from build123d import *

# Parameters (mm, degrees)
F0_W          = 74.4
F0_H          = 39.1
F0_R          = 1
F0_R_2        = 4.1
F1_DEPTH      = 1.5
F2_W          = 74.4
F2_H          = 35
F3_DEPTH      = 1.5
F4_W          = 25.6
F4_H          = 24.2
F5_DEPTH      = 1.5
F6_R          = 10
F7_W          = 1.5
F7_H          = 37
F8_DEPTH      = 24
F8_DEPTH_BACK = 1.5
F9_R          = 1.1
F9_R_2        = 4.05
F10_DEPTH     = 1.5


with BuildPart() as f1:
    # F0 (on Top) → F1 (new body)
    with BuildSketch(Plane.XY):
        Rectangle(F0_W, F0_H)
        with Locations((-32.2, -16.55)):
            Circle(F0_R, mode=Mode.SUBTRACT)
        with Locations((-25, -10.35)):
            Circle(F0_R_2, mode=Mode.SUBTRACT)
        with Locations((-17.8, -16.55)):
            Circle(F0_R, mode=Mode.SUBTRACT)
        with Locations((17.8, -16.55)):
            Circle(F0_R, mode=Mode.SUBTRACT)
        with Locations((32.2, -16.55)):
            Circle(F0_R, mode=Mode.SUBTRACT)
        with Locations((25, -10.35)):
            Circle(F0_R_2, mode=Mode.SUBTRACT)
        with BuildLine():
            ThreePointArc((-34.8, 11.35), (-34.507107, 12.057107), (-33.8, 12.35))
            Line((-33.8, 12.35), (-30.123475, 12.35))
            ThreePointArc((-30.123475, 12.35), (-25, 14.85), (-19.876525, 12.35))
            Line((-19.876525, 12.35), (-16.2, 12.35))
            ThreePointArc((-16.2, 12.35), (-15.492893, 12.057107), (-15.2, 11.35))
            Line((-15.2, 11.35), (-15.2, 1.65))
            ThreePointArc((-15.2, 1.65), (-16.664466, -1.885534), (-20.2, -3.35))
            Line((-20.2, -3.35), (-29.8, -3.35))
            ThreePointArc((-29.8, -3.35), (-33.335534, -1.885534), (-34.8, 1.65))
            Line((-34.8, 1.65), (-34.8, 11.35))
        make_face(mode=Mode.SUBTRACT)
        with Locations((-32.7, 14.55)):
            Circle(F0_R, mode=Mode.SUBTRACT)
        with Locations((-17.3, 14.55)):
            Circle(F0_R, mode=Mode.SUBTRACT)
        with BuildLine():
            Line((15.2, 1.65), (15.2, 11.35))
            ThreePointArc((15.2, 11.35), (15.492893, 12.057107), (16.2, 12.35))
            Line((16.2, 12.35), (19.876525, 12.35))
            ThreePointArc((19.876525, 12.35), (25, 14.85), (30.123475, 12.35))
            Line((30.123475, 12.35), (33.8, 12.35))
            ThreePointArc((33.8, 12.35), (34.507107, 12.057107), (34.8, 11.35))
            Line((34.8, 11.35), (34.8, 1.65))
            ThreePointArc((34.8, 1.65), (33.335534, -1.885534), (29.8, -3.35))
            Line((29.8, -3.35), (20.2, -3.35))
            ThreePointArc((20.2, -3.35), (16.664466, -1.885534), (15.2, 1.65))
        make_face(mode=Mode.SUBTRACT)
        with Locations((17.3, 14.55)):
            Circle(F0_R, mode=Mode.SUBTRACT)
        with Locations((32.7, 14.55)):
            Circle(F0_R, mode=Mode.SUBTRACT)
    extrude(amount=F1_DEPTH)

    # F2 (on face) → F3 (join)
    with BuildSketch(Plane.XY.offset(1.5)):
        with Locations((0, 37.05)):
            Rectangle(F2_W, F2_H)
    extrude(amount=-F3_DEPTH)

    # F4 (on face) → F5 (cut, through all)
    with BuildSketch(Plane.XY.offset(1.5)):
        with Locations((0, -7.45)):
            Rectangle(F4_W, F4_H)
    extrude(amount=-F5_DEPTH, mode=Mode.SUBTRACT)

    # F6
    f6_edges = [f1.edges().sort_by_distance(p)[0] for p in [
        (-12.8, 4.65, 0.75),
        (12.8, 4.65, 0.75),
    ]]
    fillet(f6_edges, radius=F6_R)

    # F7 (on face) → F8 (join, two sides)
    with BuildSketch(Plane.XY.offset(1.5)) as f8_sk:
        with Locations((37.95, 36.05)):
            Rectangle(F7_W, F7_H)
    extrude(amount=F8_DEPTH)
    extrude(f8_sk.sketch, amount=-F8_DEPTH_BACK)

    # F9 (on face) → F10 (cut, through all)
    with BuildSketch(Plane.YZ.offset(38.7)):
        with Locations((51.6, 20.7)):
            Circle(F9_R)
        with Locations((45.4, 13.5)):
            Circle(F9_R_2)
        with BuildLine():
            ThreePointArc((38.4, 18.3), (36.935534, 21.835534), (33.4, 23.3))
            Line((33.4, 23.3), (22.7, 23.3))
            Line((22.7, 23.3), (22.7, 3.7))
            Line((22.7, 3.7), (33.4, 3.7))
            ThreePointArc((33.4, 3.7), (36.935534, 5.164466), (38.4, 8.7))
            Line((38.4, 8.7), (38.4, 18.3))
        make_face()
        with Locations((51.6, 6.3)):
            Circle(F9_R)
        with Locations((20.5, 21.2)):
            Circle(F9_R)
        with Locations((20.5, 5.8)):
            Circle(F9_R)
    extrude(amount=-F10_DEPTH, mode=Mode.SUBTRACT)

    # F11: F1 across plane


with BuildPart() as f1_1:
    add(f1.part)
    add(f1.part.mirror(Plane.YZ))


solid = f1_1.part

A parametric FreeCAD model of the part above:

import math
import FreeCAD as App
import Part
import Sketcher

V = App.Vector


def edges_at(feature, points):
    """Names of the edges that pass closest to the given points."""
    edges = feature.Shape.Edges
    near = lambda p: min(range(len(edges)), key=lambda i: edges[i].distToShape(Part.Vertex(*p))[0])
    return sorted({f"Edge{near(p) + 1}" for p in points})

doc = App.newDocument("Part")
params = doc.addObject("Spreadsheet::Sheet", "Params")
for row, (alias, value) in enumerate([
    ("sketch1_diameter", "2 mm"),
    ("sketch1_radius", "5 mm"),
    ("sketch1_diameter2", "8.2 mm"),
    ("sketch1_radius2", "6.499999 mm"),
    ("sketch1_width", "74.4 mm"),
    ("pad1_length", "1.5 mm"),
    ("sketch2_height", "35 mm"),
    ("sketch2_width", "74.4 mm"),
    ("pad2_length", "1.5 mm"),
    ("sketch3_width", "25.6 mm"),
    ("sketch3_height", "24.2 mm"),
    ("fillet_radius", "10 mm"),
    ("sketch4_height", "37 mm"),
    ("sketch4_width", "1.5 mm"),
    ("pad3_length", "24 mm"),
    ("pad3_length2", "1.5 mm"),
    ("sketch5_radius", "5 mm"),
    ("sketch5_diameter", "2.2 mm"),
    ("sketch5_diameter2", "8.1 mm"),
    ("sketch5_width", "10.7 mm"),
    ("sketch5_height", "19.6 mm"),
], start=1):
    params.set(f"A{row}", alias)
    params.set(f"B{row}", "=" + value)
    params.setAlias(f"B{row}", alias)

body = doc.addObject("PartDesign::Body", "Body")

# Sketch on XY plane
sketch1 = doc.addObject("Sketcher::SketchObject", "Sketch")
body.addObject(sketch1)
sketch1.AttachmentSupport = (doc.XY_Plane, [""])
sketch1.MapMode = "FlatFace"
sketch1.addGeometry([
    Part.LineSegment(V(-37.2, 19.55, 0), V(-37.2, -19.55, 0)),  # 0
    Part.LineSegment(V(-37.2, -19.55, 0), V(37.2, -19.55, 0)),  # 1
    Part.LineSegment(V(37.2, -19.55, 0), V(37.2, 19.55, 0)),  # 2
    Part.LineSegment(V(37.2, 19.55, 0), V(-37.2, 19.55, 0)),  # 3
    Part.Circle(V(-32.2, -16.55, 0), V(0, 0, 1), 1),  # 4
    Part.Circle(V(-17.8, -16.55, 0), V(0, 0, 1), 1),  # 5
    Part.Circle(V(-25, -10.35, 0), V(0, 0, 1), 4.1),  # 6
    Part.Circle(V(17.8, -16.55, 0), V(0, 0, 1), 1),  # 7
    Part.Circle(V(32.2, -16.55, 0), V(0, 0, 1), 1),  # 8
    Part.Circle(V(25, -10.35, 0), V(0, 0, 1), 4.1),  # 9
    Part.LineSegment(V(-34.8, 1.65, 0), V(-34.8, 11.35, 0)),  # 10
    Part.ArcOfCircle(Part.Circle(V(-33.800001, 11.350001, 0), V(0, 0, 1), 0.999999), math.radians(89.999957), math.radians(180.000043)),  # 11
    Part.LineSegment(V(-33.8, 12.35, 0), V(-30.123475, 12.35, 0)),  # 12
    Part.ArcOfCircle(Part.Circle(V(-25, 8.350001, 0), V(0, 0, 1), 6.499999), math.radians(37.979869), math.radians(142.020131)),  # 13
    Part.LineSegment(V(-19.876525, 12.35, 0), V(-16.2, 12.35, 0)),  # 14
    Part.ArcOfCircle(Part.Circle(V(-16.199999, 11.350001, 0), V(0, 0, 1), 0.999999), math.radians(-0.000043), math.radians(90.000043)),  # 15
    Part.LineSegment(V(-15.2, 11.35, 0), V(-15.2, 1.65, 0)),  # 16
    Part.ArcOfCircle(Part.Circle(V(-20.2, 1.65, 0), V(0, 0, 1), 5), math.radians(-90.000004), math.radians(0.000004)),  # 17
    Part.LineSegment(V(-20.2, -3.35, 0), V(-29.8, -3.35, 0)),  # 18
    Part.ArcOfCircle(Part.Circle(V(-29.8, 1.65, 0), V(0, 0, 1), 5), math.radians(179.999996), math.radians(270.000004)),  # 19
    Part.Circle(V(-32.7, 14.55, 0), V(0, 0, 1), 1),  # 20
    Part.Circle(V(-17.3, 14.55, 0), V(0, 0, 1), 1),  # 21
    Part.ArcOfCircle(Part.Circle(V(20.2, 1.65, 0), V(0, 0, 1), 5), math.radians(179.999996), math.radians(270.000004)),  # 22
    Part.LineSegment(V(15.2, 1.65, 0), V(15.2, 11.35, 0)),  # 23
    Part.ArcOfCircle(Part.Circle(V(16.199999, 11.350001, 0), V(0, 0, 1), 0.999999), math.radians(89.999957), math.radians(180.000043)),  # 24
    Part.LineSegment(V(16.2, 12.35, 0), V(19.876525, 12.35, 0)),  # 25
    Part.ArcOfCircle(Part.Circle(V(25, 8.350001, 0), V(0, 0, 1), 6.499999), math.radians(37.979869), math.radians(142.020131)),  # 26
    Part.LineSegment(V(30.123475, 12.35, 0), V(33.8, 12.35, 0)),  # 27
    Part.ArcOfCircle(Part.Circle(V(33.800001, 11.350001, 0), V(0, 0, 1), 0.999999), math.radians(-0.000043), math.radians(90.000043)),  # 28
    Part.LineSegment(V(34.8, 11.35, 0), V(34.8, 1.65, 0)),  # 29
    Part.ArcOfCircle(Part.Circle(V(29.8, 1.65, 0), V(0, 0, 1), 5), math.radians(-90.000004), math.radians(0.000004)),  # 30
    Part.LineSegment(V(29.8, -3.35, 0), V(20.2, -3.35, 0)),  # 31
    Part.Circle(V(17.3, 14.55, 0), V(0, 0, 1), 1),  # 32
    Part.Circle(V(32.7, 14.55, 0), V(0, 0, 1), 1),  # 33
], False)
sketch1.addConstraint([
    Sketcher.Constraint("Coincident", 0, 2, 1, 1),
    Sketcher.Constraint("Coincident", 1, 2, 2, 1),
    Sketcher.Constraint("Coincident", 2, 2, 3, 1),
    Sketcher.Constraint("Coincident", 3, 2, 0, 1),
    Sketcher.Constraint("Tangent", 10, 2, 11, 2),
    Sketcher.Constraint("Tangent", 11, 1, 12, 1),
    Sketcher.Constraint("Coincident", 12, 2, 13, 2),
    Sketcher.Constraint("Coincident", 13, 1, 14, 1),
    Sketcher.Constraint("Tangent", 14, 2, 15, 2),
    Sketcher.Constraint("Tangent", 15, 1, 16, 1),
    Sketcher.Constraint("Tangent", 16, 2, 17, 2),
    Sketcher.Constraint("Tangent", 17, 1, 18, 1),
    Sketcher.Constraint("Tangent", 18, 2, 19, 2),
    Sketcher.Constraint("Tangent", 19, 1, 10, 1),
    Sketcher.Constraint("Tangent", 22, 1, 23, 1),
    Sketcher.Constraint("Tangent", 23, 2, 24, 2),
    Sketcher.Constraint("Tangent", 24, 1, 25, 1),
    Sketcher.Constraint("Coincident", 25, 2, 26, 2),
    Sketcher.Constraint("Coincident", 26, 1, 27, 1),
    Sketcher.Constraint("Tangent", 27, 2, 28, 2),
    Sketcher.Constraint("Tangent", 28, 1, 29, 1),
    Sketcher.Constraint("Tangent", 29, 2, 30, 2),
    Sketcher.Constraint("Tangent", 30, 1, 31, 1),
    Sketcher.Constraint("Tangent", 31, 2, 22, 2),
    Sketcher.Constraint("Vertical", 0),
    Sketcher.Constraint("Horizontal", 1),
    Sketcher.Constraint("Vertical", 2),
    Sketcher.Constraint("Horizontal", 3),
    Sketcher.Constraint("Vertical", 10),
    Sketcher.Constraint("Horizontal", 12),
    Sketcher.Constraint("Horizontal", 14),
    Sketcher.Constraint("Vertical", 16),
    Sketcher.Constraint("Horizontal", 18),
    Sketcher.Constraint("Vertical", 23),
    Sketcher.Constraint("Horizontal", 25),
    Sketcher.Constraint("Horizontal", 27),
    Sketcher.Constraint("Vertical", 29),
    Sketcher.Constraint("Horizontal", 31),
    Sketcher.Constraint("Equal", 4, 5),
    Sketcher.Constraint("Equal", 5, 7),
    Sketcher.Constraint("Equal", 7, 8),
    Sketcher.Constraint("Equal", 6, 9),
    Sketcher.Constraint("Equal", 8, 11),
    Sketcher.Constraint("Equal", 11, 15),
    Sketcher.Constraint("Equal", 17, 19),
    Sketcher.Constraint("Equal", 15, 20),
    Sketcher.Constraint("Equal", 20, 21),
    Sketcher.Constraint("Equal", 19, 22),
    Sketcher.Constraint("Equal", 21, 24),
    Sketcher.Constraint("Equal", 13, 26),
    Sketcher.Constraint("Equal", 24, 28),
    Sketcher.Constraint("Equal", 22, 30),
    Sketcher.Constraint("Equal", 28, 32),
    Sketcher.Constraint("Equal", 32, 33),
    Sketcher.Constraint("Symmetric", 0, 2, 2, 2, -1, 1),
    Sketcher.Constraint("Symmetric", 5, 3, 7, 3, -2),
    Sketcher.Constraint("Symmetric", 4, 3, 8, 3, -2),
    Sketcher.Constraint("Symmetric", 6, 3, 9, 3, -2),
    Sketcher.Constraint("Symmetric", 17, 3, 22, 3, -2),
    Sketcher.Constraint("Symmetric", 13, 3, 26, 3, -2),
    Sketcher.Constraint("Symmetric", 11, 3, 28, 3, -2),
    Sketcher.Constraint("Symmetric", 21, 3, 32, 3, -2),
    Sketcher.Constraint("Symmetric", 20, 3, 33, 3, -2),
    Sketcher.Constraint("Horizontal", 4, 3, 5, 3),
    Sketcher.Constraint("Horizontal", 11, 3, 15, 3),
    Sketcher.Constraint("Horizontal", 20, 3, 21, 3),
    Sketcher.Constraint("Horizontal", 15, 3, 24, 3),
    Sketcher.Constraint("Vertical", 6, 3, 13, 3),
    Sketcher.Constraint("Equal", 12, 14),
    Sketcher.Constraint("Diameter", 4, 2.0),
    Sketcher.Constraint("Radius", 17, 5.0),
    Sketcher.Constraint("Diameter", 6, 8.2),
    Sketcher.Constraint("Radius", 13, 6.499999),
    Sketcher.Constraint("DistanceX", 1, 1, 1, 2, 74.4),
    Sketcher.Constraint("DistanceX", 18, 2, 18, 1, 9.6),
    Sketcher.Constraint("DistanceY", 0, 2, 0, 1, 39.1),
    Sketcher.Constraint("DistanceY", 10, 1, 10, 2, 9.7),
    Sketcher.Constraint("DistanceX", 6, 3, -1, 1, 25.0),
    Sketcher.Constraint("DistanceX", 4, 3, 7, 3, 50.0),
    Sketcher.Constraint("DistanceX", 11, 3, 5, 3, 16.000001),
    Sketcher.Constraint("DistanceY", 13, 3, 11, 3, 3.0),
    Sketcher.Constraint("DistanceY", 6, 3, 17, 3, 12.0),
    Sketcher.Constraint("DistanceY", 0, 2, 4, 3, 3.0),
    Sketcher.Constraint("DistanceY", 33, 3, 2, 2, 5.0),
    Sketcher.Constraint("DistanceX", 20, 3, -1, 1, 32.7),
    Sketcher.Constraint("DistanceX", 21, 3, -1, 1, 17.3),
    Sketcher.Constraint("DistanceY", 5, 3, 6, 3, 6.2),
])
sketch1.setExpression("Constraints[69]", "Params.sketch1_diameter")
sketch1.setExpression("Constraints[70]", "Params.sketch1_radius")
sketch1.setExpression("Constraints[71]", "Params.sketch1_diameter2")
sketch1.setExpression("Constraints[72]", "Params.sketch1_radius2")
sketch1.setExpression("Constraints[73]", "Params.sketch1_width")
pad1 = doc.addObject("PartDesign::Pad", "Pad")
body.addObject(pad1)
pad1.Profile = sketch1
pad1.setExpression("Length", "Params.pad1_length")

# Sketch on XY plane
sketch2 = doc.addObject("Sketcher::SketchObject", "Sketch001")
body.addObject(sketch2)
sketch2.AttachmentSupport = (doc.XY_Plane, [""])
sketch2.MapMode = "FlatFace"
sketch2.AttachmentOffset = App.Placement(V(0, 0, 1.5), App.Rotation())
sketch2.addGeometry([
    Part.LineSegment(V(-37.2, 54.55, 0), V(-37.2, 19.55, 0)),
    Part.LineSegment(V(-37.2, 19.55, 0), V(37.2, 19.55, 0)),
    Part.LineSegment(V(37.2, 19.55, 0), V(37.2, 54.55, 0)),
    Part.LineSegment(V(37.2, 54.55, 0), V(-37.2, 54.55, 0)),
], False)
sketch2.addConstraint([
    Sketcher.Constraint("Coincident", 0, 2, 1, 1),
    Sketcher.Constraint("Coincident", 1, 2, 2, 1),
    Sketcher.Constraint("Coincident", 2, 2, 3, 1),
    Sketcher.Constraint("Coincident", 3, 2, 0, 1),
    Sketcher.Constraint("Vertical", 0),
    Sketcher.Constraint("Horizontal", 1),
    Sketcher.Constraint("Vertical", 2),
    Sketcher.Constraint("Horizontal", 3),
    Sketcher.Constraint("DistanceY", 0, 2, 0, 1, 35.0),
    Sketcher.Constraint("DistanceX", 1, 1, 1, 2, 74.4),
    Sketcher.Constraint("DistanceX", 0, 2, -1, 1, 37.2),
    Sketcher.Constraint("DistanceY", -1, 1, 0, 2, 19.55),
])
sketch2.setExpression("Constraints[8]", "Params.sketch2_height")
sketch2.setExpression("Constraints[9]", "Params.sketch2_width")
pad2 = doc.addObject("PartDesign::Pad", "Pad001")
body.addObject(pad2)
pad2.Profile = sketch2
pad2.setExpression("Length", "Params.pad2_length")
pad2.Reversed = True

# Sketch on XY plane
sketch3 = doc.addObject("Sketcher::SketchObject", "Sketch002")
body.addObject(sketch3)
sketch3.AttachmentSupport = (doc.XY_Plane, [""])
sketch3.MapMode = "FlatFace"
sketch3.AttachmentOffset = App.Placement(V(0, 0, 1.5), App.Rotation())
sketch3.addGeometry([
    Part.LineSegment(V(-12.8, 4.65, 0), V(-12.8, -19.55, 0)),
    Part.LineSegment(V(-12.8, -19.55, 0), V(12.8, -19.55, 0)),
    Part.LineSegment(V(12.8, -19.55, 0), V(12.8, 4.65, 0)),
    Part.LineSegment(V(12.8, 4.65, 0), V(-12.8, 4.65, 0)),
], False)
sketch3.addConstraint([
    Sketcher.Constraint("Coincident", 0, 2, 1, 1),
    Sketcher.Constraint("Coincident", 1, 2, 2, 1),
    Sketcher.Constraint("Coincident", 2, 2, 3, 1),
    Sketcher.Constraint("Coincident", 3, 2, 0, 1),
    Sketcher.Constraint("Vertical", 0),
    Sketcher.Constraint("Horizontal", 1),
    Sketcher.Constraint("Vertical", 2),
    Sketcher.Constraint("Horizontal", 3),
    Sketcher.Constraint("DistanceX", 1, 1, 1, 2, 25.6),
    Sketcher.Constraint("DistanceY", 0, 2, 0, 1, 24.2),
    Sketcher.Constraint("DistanceX", 0, 2, -1, 1, 12.8),
    Sketcher.Constraint("DistanceY", 0, 2, -1, 1, 19.55),
])
sketch3.setExpression("Constraints[8]", "Params.sketch3_width")
sketch3.setExpression("Constraints[9]", "Params.sketch3_height")
pocket1 = doc.addObject("PartDesign::Pocket", "Pocket")
body.addObject(pocket1)
pocket1.Profile = sketch3
pocket1.Type = "ThroughAll"
doc.recompute()

fillet = doc.addObject("PartDesign::Fillet", "Fillet")
body.addObject(fillet)
fillet.Base = (pocket1, edges_at(pocket1, [(-12.8, 4.65, 0.75), (12.8, 4.65, 0.75)]))
fillet.setExpression("Radius", "Params.fillet_radius")

# Sketch on XY plane
sketch4 = doc.addObject("Sketcher::SketchObject", "Sketch003")
body.addObject(sketch4)
sketch4.AttachmentSupport = (doc.XY_Plane, [""])
sketch4.MapMode = "FlatFace"
sketch4.AttachmentOffset = App.Placement(V(0, 0, 1.5), App.Rotation())
sketch4.addGeometry([
    Part.LineSegment(V(37.2, 54.55, 0), V(37.2, 17.55, 0)),
    Part.LineSegment(V(37.2, 17.55, 0), V(38.7, 17.55, 0)),
    Part.LineSegment(V(38.7, 17.55, 0), V(38.7, 54.55, 0)),
    Part.LineSegment(V(38.7, 54.55, 0), V(37.2, 54.55, 0)),
], False)
sketch4.addConstraint([
    Sketcher.Constraint("Coincident", 0, 2, 1, 1),
    Sketcher.Constraint("Coincident", 1, 2, 2, 1),
    Sketcher.Constraint("Coincident", 2, 2, 3, 1),
    Sketcher.Constraint("Coincident", 3, 2, 0, 1),
    Sketcher.Constraint("Vertical", 0),
    Sketcher.Constraint("Horizontal", 1),
    Sketcher.Constraint("Vertical", 2),
    Sketcher.Constraint("Horizontal", 3),
    Sketcher.Constraint("DistanceY", 0, 2, 0, 1, 37.0),
    Sketcher.Constraint("DistanceX", 1, 1, 1, 2, 1.5),
    Sketcher.Constraint("DistanceX", -1, 1, 0, 2, 37.2),
    Sketcher.Constraint("DistanceY", -1, 1, 0, 2, 17.55),
])
sketch4.setExpression("Constraints[8]", "Params.sketch4_height")
sketch4.setExpression("Constraints[9]", "Params.sketch4_width")
pad3 = doc.addObject("PartDesign::Pad", "Pad002")
body.addObject(pad3)
pad3.Profile = sketch4
pad3.Type = "TwoLengths"
pad3.setExpression("Length", "Params.pad3_length")
pad3.setExpression("Length2", "Params.pad3_length2")

# Sketch on YZ plane
sketch5 = doc.addObject("Sketcher::SketchObject", "Sketch004")
body.addObject(sketch5)
sketch5.AttachmentSupport = (doc.YZ_Plane, [""])
sketch5.MapMode = "FlatFace"
sketch5.AttachmentOffset = App.Placement(V(0, 0, 38.7), App.Rotation())
sketch5.addGeometry([
    Part.Circle(V(51.6, 20.7, 0), V(0, 0, 1), 1.1),  # 0
    Part.Circle(V(45.4, 13.5, 0), V(0, 0, 1), 4.05),  # 1
    Part.ArcOfCircle(Part.Circle(V(33.4, 18.3, 0), V(0, 0, 1), 5), math.radians(-0.000004), math.radians(90.000004)),  # 2
    Part.LineSegment(V(33.4, 23.3, 0), V(22.7, 23.3, 0)),  # 3
    Part.LineSegment(V(22.7, 23.3, 0), V(22.7, 3.7, 0)),  # 4
    Part.LineSegment(V(22.7, 3.7, 0), V(33.4, 3.7, 0)),  # 5
    Part.ArcOfCircle(Part.Circle(V(33.4, 8.7, 0), V(0, 0, 1), 5), math.radians(-90.000004), math.radians(0.000004)),  # 6
    Part.LineSegment(V(38.4, 8.7, 0), V(38.4, 18.3, 0)),  # 7
    Part.Circle(V(51.6, 6.3, 0), V(0, 0, 1), 1.1),  # 8
    Part.Circle(V(20.5, 21.2, 0), V(0, 0, 1), 1.1),  # 9
    Part.Circle(V(20.5, 5.8, 0), V(0, 0, 1), 1.1),  # 10
], False)
sketch5.addConstraint([
    Sketcher.Constraint("Tangent", 2, 2, 3, 1),
    Sketcher.Constraint("Coincident", 3, 2, 4, 1),
    Sketcher.Constraint("Coincident", 4, 2, 5, 1),
    Sketcher.Constraint("Tangent", 5, 2, 6, 1),
    Sketcher.Constraint("Tangent", 6, 2, 7, 1),
    Sketcher.Constraint("Tangent", 7, 2, 2, 1),
    Sketcher.Constraint("Horizontal", 3),
    Sketcher.Constraint("Vertical", 4),
    Sketcher.Constraint("Horizontal", 5),
    Sketcher.Constraint("Vertical", 7),
    Sketcher.Constraint("Equal", 2, 6),
    Sketcher.Constraint("Equal", 0, 8),
    Sketcher.Constraint("Equal", 8, 9),
    Sketcher.Constraint("Equal", 9, 10),
    Sketcher.Constraint("Vertical", 0, 3, 8, 3),
    Sketcher.Constraint("Vertical", 9, 3, 10, 3),
    Sketcher.Constraint("Radius", 2, 5.0),
    Sketcher.Constraint("Diameter", 0, 2.2),
    Sketcher.Constraint("Diameter", 1, 8.1),
    Sketcher.Constraint("DistanceX", 3, 2, 3, 1, 10.7),
    Sketcher.Constraint("DistanceY", 4, 2, 4, 1, 19.6),
    Sketcher.Constraint("DistanceX", 2, 3, 1, 3, 12.0),
    Sketcher.Constraint("DistanceY", 6, 3, 0, 3, 12.0),
    Sketcher.Constraint("DistanceY", 8, 3, 2, 3, 12.0),
    Sketcher.Constraint("DistanceX", -1, 1, 0, 3, 51.6),
    Sketcher.Constraint("DistanceY", -1, 1, 0, 3, 20.7),
    Sketcher.Constraint("DistanceX", -1, 1, 1, 3, 45.4),
    Sketcher.Constraint("DistanceY", -1, 1, 1, 3, 13.5),
    Sketcher.Constraint("DistanceX", -1, 1, 9, 3, 20.5),
    Sketcher.Constraint("DistanceY", -1, 1, 9, 3, 21.2),
    Sketcher.Constraint("DistanceY", -1, 1, 10, 3, 5.8),
])
sketch5.setExpression("Constraints[16]", "Params.sketch5_radius")
sketch5.setExpression("Constraints[17]", "Params.sketch5_diameter")
sketch5.setExpression("Constraints[18]", "Params.sketch5_diameter2")
sketch5.setExpression("Constraints[19]", "Params.sketch5_width")
sketch5.setExpression("Constraints[20]", "Params.sketch5_height")
pocket2 = doc.addObject("PartDesign::Pocket", "Pocket001")
body.addObject(pocket2)
pocket2.Profile = sketch5
pocket2.Type = "ThroughAll"
body2 = doc.addObject("PartDesign::Body", "Body001")
doc.recompute()

body2.BaseFeature = body
doc.recompute()

mirroring = doc.addObject("Part::Mirroring", "Mirroring")
mirroring.Source = body
mirroring.Base = V(0, 0, 0)
mirroring.Normal = V(1, 0, 0)
body3 = doc.addObject("PartDesign::Body", "Body002")
body3.BaseFeature = mirroring
boolean = doc.addObject("PartDesign::Boolean", "Boolean")
body2.addObject(boolean)
boolean.Type = "Fuse"
boolean.addObjects([body3])
doc.recompute()
mirroring.Visibility = False

doc.recompute()
